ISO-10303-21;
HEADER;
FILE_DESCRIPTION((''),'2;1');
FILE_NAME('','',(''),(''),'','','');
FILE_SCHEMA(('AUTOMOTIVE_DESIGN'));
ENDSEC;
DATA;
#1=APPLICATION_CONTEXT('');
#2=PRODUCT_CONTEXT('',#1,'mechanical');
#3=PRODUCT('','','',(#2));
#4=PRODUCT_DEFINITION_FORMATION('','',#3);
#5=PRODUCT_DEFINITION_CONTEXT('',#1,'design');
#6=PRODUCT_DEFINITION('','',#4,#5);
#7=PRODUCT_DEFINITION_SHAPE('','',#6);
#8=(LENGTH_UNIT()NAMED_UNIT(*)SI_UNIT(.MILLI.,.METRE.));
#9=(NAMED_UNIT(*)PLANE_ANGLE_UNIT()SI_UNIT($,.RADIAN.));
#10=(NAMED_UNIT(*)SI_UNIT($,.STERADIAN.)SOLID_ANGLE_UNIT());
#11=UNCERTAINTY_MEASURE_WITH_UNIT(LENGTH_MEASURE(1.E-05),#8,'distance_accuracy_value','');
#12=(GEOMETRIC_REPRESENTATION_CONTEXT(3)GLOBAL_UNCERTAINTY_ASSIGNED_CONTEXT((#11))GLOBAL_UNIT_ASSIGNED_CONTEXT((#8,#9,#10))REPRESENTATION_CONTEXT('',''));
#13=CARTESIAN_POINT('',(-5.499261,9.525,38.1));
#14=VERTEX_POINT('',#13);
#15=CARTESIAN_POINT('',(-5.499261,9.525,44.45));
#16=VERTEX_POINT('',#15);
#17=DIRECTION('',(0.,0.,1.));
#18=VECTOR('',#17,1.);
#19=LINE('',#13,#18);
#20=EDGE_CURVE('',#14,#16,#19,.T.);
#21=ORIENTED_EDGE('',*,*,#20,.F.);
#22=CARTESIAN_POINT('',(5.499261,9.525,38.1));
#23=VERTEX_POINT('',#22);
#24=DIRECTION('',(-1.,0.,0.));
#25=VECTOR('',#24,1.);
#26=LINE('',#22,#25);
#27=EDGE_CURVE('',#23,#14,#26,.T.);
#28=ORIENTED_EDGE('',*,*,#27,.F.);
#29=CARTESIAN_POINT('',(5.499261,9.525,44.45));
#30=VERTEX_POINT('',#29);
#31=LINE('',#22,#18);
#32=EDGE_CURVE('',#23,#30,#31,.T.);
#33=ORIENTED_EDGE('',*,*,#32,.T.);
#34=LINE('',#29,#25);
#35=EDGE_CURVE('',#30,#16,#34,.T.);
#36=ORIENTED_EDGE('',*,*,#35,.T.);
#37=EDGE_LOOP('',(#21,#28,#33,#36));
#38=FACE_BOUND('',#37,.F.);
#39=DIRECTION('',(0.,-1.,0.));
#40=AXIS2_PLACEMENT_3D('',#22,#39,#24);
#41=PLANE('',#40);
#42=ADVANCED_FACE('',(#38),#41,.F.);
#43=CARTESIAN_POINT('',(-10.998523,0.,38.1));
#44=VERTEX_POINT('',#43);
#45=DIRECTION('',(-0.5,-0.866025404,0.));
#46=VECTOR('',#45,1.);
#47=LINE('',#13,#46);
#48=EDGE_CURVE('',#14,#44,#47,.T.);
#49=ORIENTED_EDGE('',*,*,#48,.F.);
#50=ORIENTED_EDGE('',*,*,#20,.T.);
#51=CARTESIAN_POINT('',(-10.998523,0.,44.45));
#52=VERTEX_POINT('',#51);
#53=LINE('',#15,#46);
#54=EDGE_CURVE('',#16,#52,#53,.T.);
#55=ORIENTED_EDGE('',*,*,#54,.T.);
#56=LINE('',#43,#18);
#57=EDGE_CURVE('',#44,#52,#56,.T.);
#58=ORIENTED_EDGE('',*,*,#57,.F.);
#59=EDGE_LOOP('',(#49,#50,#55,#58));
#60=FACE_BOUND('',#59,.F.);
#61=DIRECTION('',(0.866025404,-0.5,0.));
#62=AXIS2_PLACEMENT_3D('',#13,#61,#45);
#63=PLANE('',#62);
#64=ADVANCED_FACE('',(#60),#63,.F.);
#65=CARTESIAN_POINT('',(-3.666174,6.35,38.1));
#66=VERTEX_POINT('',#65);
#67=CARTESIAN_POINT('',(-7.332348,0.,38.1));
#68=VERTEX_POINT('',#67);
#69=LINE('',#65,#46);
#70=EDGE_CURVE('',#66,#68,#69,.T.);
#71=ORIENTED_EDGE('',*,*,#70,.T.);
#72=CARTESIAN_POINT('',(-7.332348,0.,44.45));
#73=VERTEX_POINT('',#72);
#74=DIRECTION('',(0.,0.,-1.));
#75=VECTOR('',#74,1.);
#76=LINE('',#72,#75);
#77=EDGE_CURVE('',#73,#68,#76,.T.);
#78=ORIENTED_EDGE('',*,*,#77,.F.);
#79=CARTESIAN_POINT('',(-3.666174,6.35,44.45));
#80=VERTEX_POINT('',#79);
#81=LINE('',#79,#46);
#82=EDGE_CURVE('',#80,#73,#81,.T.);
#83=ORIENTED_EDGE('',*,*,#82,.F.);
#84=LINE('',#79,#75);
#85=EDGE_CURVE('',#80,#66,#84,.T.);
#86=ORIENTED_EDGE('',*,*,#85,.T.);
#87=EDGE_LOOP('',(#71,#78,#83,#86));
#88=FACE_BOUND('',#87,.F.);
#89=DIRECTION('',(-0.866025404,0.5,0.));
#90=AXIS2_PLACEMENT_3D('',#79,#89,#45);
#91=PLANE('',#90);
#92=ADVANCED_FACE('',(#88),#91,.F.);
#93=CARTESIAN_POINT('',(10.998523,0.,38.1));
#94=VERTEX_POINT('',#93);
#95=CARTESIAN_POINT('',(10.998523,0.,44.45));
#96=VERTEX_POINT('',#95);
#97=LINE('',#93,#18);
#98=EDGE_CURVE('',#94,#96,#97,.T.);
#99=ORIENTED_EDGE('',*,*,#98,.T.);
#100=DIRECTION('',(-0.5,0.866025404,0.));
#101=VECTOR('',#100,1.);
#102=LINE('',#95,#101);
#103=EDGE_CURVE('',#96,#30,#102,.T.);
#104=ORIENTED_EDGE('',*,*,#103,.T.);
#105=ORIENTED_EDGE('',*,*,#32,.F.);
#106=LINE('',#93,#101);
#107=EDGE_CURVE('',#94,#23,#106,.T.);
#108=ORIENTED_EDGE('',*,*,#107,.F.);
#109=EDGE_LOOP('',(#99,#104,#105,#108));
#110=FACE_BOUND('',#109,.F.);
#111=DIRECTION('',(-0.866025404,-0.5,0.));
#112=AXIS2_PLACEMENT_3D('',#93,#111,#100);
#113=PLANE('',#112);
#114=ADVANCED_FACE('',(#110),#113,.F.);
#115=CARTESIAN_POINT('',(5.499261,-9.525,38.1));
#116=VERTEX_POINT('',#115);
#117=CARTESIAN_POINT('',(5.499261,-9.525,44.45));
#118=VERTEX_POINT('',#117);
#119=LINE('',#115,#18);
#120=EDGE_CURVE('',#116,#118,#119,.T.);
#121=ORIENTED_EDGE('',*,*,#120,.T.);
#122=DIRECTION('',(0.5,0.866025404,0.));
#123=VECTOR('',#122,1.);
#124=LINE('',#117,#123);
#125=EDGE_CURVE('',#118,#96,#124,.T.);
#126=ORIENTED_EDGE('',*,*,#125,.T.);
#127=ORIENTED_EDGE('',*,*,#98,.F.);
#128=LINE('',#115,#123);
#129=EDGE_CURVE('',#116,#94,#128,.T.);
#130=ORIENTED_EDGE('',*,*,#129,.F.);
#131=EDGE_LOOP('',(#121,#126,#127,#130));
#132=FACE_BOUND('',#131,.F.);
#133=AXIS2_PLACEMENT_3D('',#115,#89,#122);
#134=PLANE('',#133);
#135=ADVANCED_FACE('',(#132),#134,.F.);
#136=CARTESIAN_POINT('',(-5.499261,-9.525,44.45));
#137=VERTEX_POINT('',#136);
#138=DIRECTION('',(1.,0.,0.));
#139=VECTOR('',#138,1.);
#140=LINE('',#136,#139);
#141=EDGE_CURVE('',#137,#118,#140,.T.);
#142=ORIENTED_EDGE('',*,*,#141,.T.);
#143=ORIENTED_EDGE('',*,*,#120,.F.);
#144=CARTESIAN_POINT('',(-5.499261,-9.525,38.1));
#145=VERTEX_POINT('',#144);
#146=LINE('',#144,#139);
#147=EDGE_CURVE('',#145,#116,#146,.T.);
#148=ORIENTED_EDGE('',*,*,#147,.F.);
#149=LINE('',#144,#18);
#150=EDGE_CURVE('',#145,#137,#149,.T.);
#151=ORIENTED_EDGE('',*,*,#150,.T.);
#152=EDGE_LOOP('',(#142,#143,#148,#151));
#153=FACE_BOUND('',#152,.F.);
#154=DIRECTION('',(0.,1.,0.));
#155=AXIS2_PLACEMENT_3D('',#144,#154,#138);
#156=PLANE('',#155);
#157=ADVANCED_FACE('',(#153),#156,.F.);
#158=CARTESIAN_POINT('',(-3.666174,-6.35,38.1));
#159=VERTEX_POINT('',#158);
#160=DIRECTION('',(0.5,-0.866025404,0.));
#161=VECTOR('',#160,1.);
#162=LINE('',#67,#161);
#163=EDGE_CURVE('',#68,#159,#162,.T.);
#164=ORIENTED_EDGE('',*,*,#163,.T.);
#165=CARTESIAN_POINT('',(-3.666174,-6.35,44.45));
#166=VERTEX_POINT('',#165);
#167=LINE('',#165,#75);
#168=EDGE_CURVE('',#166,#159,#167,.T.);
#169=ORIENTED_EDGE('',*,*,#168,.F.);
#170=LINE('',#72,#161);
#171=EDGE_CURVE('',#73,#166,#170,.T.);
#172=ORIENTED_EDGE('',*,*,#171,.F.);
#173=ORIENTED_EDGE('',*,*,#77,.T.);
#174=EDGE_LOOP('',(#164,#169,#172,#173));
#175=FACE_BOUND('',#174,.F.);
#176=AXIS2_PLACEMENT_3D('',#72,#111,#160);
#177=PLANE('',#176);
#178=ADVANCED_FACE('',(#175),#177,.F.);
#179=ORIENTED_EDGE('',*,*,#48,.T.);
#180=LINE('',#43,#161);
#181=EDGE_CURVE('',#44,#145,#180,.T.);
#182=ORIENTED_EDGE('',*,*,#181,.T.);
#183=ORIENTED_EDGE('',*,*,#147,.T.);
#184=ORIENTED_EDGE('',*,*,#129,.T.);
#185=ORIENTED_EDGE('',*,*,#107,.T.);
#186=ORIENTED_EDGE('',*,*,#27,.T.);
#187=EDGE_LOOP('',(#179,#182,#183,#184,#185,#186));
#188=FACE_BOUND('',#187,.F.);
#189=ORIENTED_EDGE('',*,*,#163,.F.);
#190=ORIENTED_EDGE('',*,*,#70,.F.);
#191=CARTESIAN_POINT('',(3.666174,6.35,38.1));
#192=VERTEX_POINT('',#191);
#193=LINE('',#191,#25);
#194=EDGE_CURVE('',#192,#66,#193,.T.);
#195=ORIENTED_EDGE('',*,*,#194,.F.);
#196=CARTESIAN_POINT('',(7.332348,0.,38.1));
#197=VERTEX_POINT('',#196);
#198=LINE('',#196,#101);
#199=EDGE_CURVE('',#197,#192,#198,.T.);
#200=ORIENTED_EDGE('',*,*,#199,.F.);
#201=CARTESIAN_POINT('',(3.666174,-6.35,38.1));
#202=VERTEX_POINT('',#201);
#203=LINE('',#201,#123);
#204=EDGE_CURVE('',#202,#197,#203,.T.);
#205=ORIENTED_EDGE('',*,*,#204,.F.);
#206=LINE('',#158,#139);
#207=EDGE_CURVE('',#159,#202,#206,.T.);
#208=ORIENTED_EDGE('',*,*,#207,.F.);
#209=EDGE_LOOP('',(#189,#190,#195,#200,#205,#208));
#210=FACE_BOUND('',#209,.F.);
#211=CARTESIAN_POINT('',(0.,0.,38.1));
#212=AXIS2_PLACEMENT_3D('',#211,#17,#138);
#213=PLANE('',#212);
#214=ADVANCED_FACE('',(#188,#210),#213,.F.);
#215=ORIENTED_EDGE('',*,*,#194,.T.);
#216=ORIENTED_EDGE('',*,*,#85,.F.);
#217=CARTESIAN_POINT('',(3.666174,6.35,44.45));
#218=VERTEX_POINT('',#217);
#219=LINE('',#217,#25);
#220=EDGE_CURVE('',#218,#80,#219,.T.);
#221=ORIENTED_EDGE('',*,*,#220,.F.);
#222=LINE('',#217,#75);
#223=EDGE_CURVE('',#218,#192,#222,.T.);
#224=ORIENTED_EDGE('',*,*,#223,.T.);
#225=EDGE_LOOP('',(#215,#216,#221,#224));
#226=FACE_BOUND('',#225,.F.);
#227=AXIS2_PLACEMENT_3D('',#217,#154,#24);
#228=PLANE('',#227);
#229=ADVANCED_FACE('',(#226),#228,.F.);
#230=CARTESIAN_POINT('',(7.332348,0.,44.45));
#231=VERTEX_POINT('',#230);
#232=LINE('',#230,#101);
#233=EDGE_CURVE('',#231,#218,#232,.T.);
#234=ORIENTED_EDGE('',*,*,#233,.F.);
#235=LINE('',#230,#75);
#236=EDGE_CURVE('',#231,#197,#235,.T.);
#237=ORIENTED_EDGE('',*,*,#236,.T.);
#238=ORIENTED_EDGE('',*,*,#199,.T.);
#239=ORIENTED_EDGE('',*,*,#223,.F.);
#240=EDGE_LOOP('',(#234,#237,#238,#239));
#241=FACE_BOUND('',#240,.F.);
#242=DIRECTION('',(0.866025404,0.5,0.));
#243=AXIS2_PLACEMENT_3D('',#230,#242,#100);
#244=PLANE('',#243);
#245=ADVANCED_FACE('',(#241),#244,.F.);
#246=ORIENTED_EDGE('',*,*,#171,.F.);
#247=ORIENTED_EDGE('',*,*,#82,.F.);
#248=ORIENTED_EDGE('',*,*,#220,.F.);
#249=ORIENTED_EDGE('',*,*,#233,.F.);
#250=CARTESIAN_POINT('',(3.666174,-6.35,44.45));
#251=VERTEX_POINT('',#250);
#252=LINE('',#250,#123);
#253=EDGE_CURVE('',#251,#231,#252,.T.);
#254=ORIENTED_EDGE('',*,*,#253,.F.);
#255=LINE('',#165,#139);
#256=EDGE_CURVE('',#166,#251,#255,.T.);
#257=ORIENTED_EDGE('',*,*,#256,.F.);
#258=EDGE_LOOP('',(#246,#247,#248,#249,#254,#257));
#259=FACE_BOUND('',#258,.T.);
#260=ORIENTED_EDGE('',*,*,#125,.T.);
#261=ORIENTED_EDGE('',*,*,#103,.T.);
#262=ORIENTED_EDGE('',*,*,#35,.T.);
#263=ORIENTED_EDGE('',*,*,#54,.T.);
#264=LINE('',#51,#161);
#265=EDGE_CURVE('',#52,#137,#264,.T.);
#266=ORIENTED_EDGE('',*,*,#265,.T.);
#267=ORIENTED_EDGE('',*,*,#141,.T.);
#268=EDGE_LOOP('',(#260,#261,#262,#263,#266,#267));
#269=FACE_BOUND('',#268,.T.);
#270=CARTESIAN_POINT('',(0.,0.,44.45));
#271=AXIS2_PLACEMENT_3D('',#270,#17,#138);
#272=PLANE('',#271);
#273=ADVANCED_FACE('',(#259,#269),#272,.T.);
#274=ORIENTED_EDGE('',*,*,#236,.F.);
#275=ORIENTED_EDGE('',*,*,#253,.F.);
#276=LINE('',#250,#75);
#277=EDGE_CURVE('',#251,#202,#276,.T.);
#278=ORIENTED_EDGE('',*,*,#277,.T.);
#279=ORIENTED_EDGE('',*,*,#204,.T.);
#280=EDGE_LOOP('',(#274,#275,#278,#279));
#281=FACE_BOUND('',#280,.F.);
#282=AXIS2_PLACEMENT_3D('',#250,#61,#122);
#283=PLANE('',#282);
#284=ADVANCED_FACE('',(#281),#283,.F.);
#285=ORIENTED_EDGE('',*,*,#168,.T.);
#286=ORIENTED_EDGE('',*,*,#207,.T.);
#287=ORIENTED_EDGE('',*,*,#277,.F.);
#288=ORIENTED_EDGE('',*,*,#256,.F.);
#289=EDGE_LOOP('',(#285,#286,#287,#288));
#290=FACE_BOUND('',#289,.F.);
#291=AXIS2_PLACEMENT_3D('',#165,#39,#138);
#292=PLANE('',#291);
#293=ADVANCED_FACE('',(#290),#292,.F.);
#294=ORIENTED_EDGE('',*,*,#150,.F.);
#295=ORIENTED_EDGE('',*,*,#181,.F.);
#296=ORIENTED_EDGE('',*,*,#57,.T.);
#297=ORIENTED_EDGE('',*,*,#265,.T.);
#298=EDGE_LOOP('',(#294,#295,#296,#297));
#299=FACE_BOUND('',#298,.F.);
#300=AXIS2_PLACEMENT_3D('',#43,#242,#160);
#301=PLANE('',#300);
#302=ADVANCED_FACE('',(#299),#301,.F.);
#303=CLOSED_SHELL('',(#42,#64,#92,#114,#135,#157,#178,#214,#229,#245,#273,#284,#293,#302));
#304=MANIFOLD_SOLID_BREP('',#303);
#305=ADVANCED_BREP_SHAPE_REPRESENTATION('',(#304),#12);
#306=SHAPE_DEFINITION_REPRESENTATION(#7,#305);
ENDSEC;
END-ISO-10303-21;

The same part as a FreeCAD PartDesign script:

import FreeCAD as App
import Part
import Sketcher
Q = App.Units.Quantity

doc = App.newDocument("Part")
params = doc.addObject("Spreadsheet::Sheet", "Params")
for row, (alias, value) in enumerate([
    ("pad1_length", "0.25 in"),
    ("pocket1_length", "0.25 in"),
], start=1):
    params.set(f"A{row}", alias)
    params.set(f"B{row}", "=" + value)
    params.setAlias(f"B{row}", alias)

body = doc.addObject("PartDesign::Body", "Body")

sketch1 = body.newObject("Sketcher::SketchObject", "Sketch")
sketch1.AttachmentSupport = (doc.getObject("XY_Plane"), [""])
sketch1.MapMode = "FlatFace"
sketch1.AttachmentOffset = App.Placement(App.Vector(0, 0, 1.5 * 25.4), App.Rotation())
sketch1.addGeometry([
    Part.LineSegment(App.Vector(5.499261, -9.525, 0), App.Vector(10.998523, 0, 0)),
    Part.LineSegment(App.Vector(10.998523, 0, 0), App.Vector(5.499261, 9.525, 0)),
    Part.LineSegment(App.Vector(5.499261, 9.525, 0), App.Vector(-5.499261, 9.525, 0)),
    Part.LineSegment(App.Vector(-5.499261, 9.525, 0), App.Vector(-10.998523, 0, 0)),
    Part.LineSegment(App.Vector(-10.998523, 0, 0), App.Vector(-5.499261, -9.525, 0)),
    Part.LineSegment(App.Vector(-5.499261, -9.525, 0), App.Vector(5.499261, -9.525, 0)),
], False)
sketch1.addConstraint([
    Sketcher.Constraint("Coincident", 0, 2, 1, 1),
    Sketcher.Constraint("Coincident", 1, 2, 2, 1),
    Sketcher.Constraint("Coincident", 2, 2, 3, 1),
    Sketcher.Constraint("Coincident", 3, 2, 4, 1),
    Sketcher.Constraint("Coincident", 4, 2, 5, 1),
    Sketcher.Constraint("Coincident", 5, 2, 0, 1),
    Sketcher.Constraint("Horizontal", 2),
    Sketcher.Constraint("Horizontal", 5),
    Sketcher.Constraint("Symmetric", 0, 2, 3, 2, -1, 1),
    Sketcher.Constraint("Symmetric", 1, 2, 4, 2, -1, 1),
    Sketcher.Constraint("PointOnObject", 0, 2, -1),
    Sketcher.Constraint("Parallel", 0, 3),
    Sketcher.Constraint("Vertical", 2, 2, 4, 2),
    Sketcher.Constraint("Angle", 0, Q("60 deg")),
    Sketcher.Constraint("DistanceY", 4, 2, 2, 2, Q("0.75 in")),
    Sketcher.Constraint("DistanceX", 2, 2, 2, 1, 10.998523),
])
pad1 = body.newObject("PartDesign::Pad", "Pad")
pad1.Profile = sketch1
pad1.setExpression("Length", "Params.pad1_length")

sketch2 = body.newObject("Sketcher::SketchObject", "Sketch001")
sketch2.AttachmentSupport = (doc.getObject("XY_Plane"), [""])
sketch2.MapMode = "FlatFace"
sketch2.AttachmentOffset = App.Placement(App.Vector(0, 0, 1.75 * 25.4), App.Rotation())
sketch2.addGeometry([
    Part.LineSegment(App.Vector(3.666174, -6.35, 0), App.Vector(7.332348, 0, 0)),
    Part.LineSegment(App.Vector(7.332348, 0, 0), App.Vector(3.666174, 6.35, 0)),
    Part.LineSegment(App.Vector(3.666174, 6.35, 0), App.Vector(-3.666174, 6.35, 0)),
    Part.LineSegment(App.Vector(-3.666174, 6.35, 0), App.Vector(-7.332348, 0, 0)),
    Part.LineSegment(App.Vector(-7.332348, 0, 0), App.Vector(-3.666174, -6.35, 0)),
    Part.LineSegment(App.Vector(-3.666174, -6.35, 0), App.Vector(3.666174, -6.35, 0)),
], False)
sketch2.addConstraint([
    Sketcher.Constraint("Coincident", 0, 2, 1, 1),
    Sketcher.Constraint("Coincident", 1, 2, 2, 1),
    Sketcher.Constraint("Coincident", 2, 2, 3, 1),
    Sketcher.Constraint("Coincident", 3, 2, 4, 1),
    Sketcher.Constraint("Coincident", 4, 2, 5, 1),
    Sketcher.Constraint("Coincident", 5, 2, 0, 1),
    Sketcher.Constraint("Horizontal", 2),
    Sketcher.Constraint("Horizontal", 5),
    Sketcher.Constraint("Symmetric", 0, 2, 3, 2, -1, 1),
    Sketcher.Constraint("Symmetric", 1, 2, 4, 2, -1, 1),
    Sketcher.Constraint("PointOnObject", 0, 2, -1),
    Sketcher.Constraint("Parallel", 0, 3),
    Sketcher.Constraint("Vertical", 2, 2, 4, 2),
    Sketcher.Constraint("Angle", 0, Q("60 deg")),
    Sketcher.Constraint("DistanceY", 4, 2, 2, 2, Q("0.5 in")),
    Sketcher.Constraint("DistanceX", 2, 2, 2, 1, 7.332348),
])
pocket1 = body.newObject("PartDesign::Pocket", "Pocket")
pocket1.Profile = sketch2
pocket1.setExpression("Length", "Params.pocket1_length")

doc.recompute()
